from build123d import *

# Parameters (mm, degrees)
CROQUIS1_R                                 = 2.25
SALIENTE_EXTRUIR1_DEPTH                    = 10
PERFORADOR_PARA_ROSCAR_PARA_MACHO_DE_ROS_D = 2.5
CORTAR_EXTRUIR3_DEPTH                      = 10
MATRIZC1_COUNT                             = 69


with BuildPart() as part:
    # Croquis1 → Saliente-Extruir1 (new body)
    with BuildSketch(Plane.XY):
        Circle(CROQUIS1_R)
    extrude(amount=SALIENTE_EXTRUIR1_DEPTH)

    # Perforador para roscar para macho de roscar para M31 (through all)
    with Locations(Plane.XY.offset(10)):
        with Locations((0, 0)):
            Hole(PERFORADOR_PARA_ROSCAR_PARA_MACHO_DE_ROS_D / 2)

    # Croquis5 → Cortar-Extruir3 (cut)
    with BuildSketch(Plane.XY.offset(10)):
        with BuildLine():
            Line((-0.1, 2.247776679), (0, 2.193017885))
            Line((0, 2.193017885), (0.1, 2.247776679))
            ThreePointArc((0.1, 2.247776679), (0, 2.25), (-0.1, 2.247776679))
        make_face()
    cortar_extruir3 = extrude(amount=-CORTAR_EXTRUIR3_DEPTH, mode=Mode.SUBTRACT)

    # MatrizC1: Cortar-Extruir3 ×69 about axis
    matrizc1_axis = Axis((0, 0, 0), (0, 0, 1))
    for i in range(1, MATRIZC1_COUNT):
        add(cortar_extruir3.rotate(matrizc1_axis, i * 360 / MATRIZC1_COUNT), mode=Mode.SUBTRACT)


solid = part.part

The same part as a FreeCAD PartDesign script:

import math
import FreeCAD as App
import Part
import Sketcher

doc = App.newDocument("Part")
body = doc.addObject("PartDesign::Body", "Body")

sketch1 = body.newObject("Sketcher::SketchObject", "Sketch")
sketch1.AttachmentSupport = (doc.getObject("XY_Plane"), [""])
sketch1.MapMode = "FlatFace"
sketch1.addGeometry(Part.Circle(App.Vector(0, 0, 0), App.Vector(0, 0, 1), 2.2), False)
sketch1.addConstraint([
    Sketcher.Constraint("Coincident", 0, 3, -1, 1),
    Sketcher.Constraint("Diameter", 0, 4.5),
])
pad1 = body.newObject("PartDesign::Pad", "Pad")
pad1.Profile = sketch1
pad1.Length = 10

sketch2 = body.newObject("Sketcher::SketchObject", "Sketch001")
sketch2.AttachmentSupport = (doc.getObject("XY_Plane"), [""])
sketch2.MapMode = "FlatFace"
sketch2.AttachmentOffset = App.Placement(App.Vector(0, 0, 10), App.Rotation())
sketch2.addGeometry(Part.Circle(App.Vector(0, 0, 0), App.Vector(0, 0, 1), 1.2), False)
sketch2.addConstraint([
    Sketcher.Constraint("Coincident", 0, 3, -1, 1),
    Sketcher.Constraint("Diameter", 0, 2.5),
])
doc.recompute()
hole = body.newObject("PartDesign::Hole", "Hole")
hole.Profile = sketch2
hole.ThreadType = "None"
hole.Diameter = 2.5
hole.DepthType = "ThroughAll"

sketch3 = body.newObject("Sketcher::SketchObject", "Sketch002")
sketch3.AttachmentSupport = (doc.getObject("XY_Plane"), [""])
sketch3.MapMode = "FlatFace"
sketch3.AttachmentOffset = App.Placement(App.Vector(0, 0, 10), App.Rotation())
sketch3.addGeometry([
    Part.LineSegment(App.Vector(-0.1, 2.25, 0), App.Vector(0, 2.19, 0)),
    Part.LineSegment(App.Vector(0, 2.19, 0), App.Vector(0.1, 2.25, 0)),
    Part.ArcOfCircle(Part.Circle(App.Vector(0, 0, 0), App.Vector(0, 0, 1), 2.25), math.radians(87.45), math.radians(92.55)),
], False)
sketch3.addConstraint([
    Sketcher.Constraint("Coincident", 0, 2, 1, 1),
    Sketcher.Constraint("Coincident", 1, 2, 2, 1),
    Sketcher.Constraint("Coincident", 2, 2, 0, 1),
    Sketcher.Constraint("Coincident", 2, 3, -1, 1),
    Sketcher.Constraint("PointOnObject", 0, 2, -2),
    Sketcher.Constraint("Horizontal", 1, 2, 2, 2),
    Sketcher.Constraint("Radius", 2, 2.25),
    Sketcher.Constraint("DistanceX", -1, 1, 1, 2, 0.1),
    Sketcher.Constraint("Distance", 0, 0.114011),
])
pocket1 = body.newObject("PartDesign::Pocket", "Pocket")
pocket1.Profile = sketch3
pocket1.Length = 10
doc.recompute()

polarpattern = body.newObject("PartDesign::PolarPattern", "PolarPattern")
polarpattern.Originals = [pocket1]
polarpattern.Axis = (doc.getObject("Z_Axis"), [""])
polarpattern.Angle = 360
polarpattern.Occurrences = 69
body.Tip = polarpattern

doc.recompute()
